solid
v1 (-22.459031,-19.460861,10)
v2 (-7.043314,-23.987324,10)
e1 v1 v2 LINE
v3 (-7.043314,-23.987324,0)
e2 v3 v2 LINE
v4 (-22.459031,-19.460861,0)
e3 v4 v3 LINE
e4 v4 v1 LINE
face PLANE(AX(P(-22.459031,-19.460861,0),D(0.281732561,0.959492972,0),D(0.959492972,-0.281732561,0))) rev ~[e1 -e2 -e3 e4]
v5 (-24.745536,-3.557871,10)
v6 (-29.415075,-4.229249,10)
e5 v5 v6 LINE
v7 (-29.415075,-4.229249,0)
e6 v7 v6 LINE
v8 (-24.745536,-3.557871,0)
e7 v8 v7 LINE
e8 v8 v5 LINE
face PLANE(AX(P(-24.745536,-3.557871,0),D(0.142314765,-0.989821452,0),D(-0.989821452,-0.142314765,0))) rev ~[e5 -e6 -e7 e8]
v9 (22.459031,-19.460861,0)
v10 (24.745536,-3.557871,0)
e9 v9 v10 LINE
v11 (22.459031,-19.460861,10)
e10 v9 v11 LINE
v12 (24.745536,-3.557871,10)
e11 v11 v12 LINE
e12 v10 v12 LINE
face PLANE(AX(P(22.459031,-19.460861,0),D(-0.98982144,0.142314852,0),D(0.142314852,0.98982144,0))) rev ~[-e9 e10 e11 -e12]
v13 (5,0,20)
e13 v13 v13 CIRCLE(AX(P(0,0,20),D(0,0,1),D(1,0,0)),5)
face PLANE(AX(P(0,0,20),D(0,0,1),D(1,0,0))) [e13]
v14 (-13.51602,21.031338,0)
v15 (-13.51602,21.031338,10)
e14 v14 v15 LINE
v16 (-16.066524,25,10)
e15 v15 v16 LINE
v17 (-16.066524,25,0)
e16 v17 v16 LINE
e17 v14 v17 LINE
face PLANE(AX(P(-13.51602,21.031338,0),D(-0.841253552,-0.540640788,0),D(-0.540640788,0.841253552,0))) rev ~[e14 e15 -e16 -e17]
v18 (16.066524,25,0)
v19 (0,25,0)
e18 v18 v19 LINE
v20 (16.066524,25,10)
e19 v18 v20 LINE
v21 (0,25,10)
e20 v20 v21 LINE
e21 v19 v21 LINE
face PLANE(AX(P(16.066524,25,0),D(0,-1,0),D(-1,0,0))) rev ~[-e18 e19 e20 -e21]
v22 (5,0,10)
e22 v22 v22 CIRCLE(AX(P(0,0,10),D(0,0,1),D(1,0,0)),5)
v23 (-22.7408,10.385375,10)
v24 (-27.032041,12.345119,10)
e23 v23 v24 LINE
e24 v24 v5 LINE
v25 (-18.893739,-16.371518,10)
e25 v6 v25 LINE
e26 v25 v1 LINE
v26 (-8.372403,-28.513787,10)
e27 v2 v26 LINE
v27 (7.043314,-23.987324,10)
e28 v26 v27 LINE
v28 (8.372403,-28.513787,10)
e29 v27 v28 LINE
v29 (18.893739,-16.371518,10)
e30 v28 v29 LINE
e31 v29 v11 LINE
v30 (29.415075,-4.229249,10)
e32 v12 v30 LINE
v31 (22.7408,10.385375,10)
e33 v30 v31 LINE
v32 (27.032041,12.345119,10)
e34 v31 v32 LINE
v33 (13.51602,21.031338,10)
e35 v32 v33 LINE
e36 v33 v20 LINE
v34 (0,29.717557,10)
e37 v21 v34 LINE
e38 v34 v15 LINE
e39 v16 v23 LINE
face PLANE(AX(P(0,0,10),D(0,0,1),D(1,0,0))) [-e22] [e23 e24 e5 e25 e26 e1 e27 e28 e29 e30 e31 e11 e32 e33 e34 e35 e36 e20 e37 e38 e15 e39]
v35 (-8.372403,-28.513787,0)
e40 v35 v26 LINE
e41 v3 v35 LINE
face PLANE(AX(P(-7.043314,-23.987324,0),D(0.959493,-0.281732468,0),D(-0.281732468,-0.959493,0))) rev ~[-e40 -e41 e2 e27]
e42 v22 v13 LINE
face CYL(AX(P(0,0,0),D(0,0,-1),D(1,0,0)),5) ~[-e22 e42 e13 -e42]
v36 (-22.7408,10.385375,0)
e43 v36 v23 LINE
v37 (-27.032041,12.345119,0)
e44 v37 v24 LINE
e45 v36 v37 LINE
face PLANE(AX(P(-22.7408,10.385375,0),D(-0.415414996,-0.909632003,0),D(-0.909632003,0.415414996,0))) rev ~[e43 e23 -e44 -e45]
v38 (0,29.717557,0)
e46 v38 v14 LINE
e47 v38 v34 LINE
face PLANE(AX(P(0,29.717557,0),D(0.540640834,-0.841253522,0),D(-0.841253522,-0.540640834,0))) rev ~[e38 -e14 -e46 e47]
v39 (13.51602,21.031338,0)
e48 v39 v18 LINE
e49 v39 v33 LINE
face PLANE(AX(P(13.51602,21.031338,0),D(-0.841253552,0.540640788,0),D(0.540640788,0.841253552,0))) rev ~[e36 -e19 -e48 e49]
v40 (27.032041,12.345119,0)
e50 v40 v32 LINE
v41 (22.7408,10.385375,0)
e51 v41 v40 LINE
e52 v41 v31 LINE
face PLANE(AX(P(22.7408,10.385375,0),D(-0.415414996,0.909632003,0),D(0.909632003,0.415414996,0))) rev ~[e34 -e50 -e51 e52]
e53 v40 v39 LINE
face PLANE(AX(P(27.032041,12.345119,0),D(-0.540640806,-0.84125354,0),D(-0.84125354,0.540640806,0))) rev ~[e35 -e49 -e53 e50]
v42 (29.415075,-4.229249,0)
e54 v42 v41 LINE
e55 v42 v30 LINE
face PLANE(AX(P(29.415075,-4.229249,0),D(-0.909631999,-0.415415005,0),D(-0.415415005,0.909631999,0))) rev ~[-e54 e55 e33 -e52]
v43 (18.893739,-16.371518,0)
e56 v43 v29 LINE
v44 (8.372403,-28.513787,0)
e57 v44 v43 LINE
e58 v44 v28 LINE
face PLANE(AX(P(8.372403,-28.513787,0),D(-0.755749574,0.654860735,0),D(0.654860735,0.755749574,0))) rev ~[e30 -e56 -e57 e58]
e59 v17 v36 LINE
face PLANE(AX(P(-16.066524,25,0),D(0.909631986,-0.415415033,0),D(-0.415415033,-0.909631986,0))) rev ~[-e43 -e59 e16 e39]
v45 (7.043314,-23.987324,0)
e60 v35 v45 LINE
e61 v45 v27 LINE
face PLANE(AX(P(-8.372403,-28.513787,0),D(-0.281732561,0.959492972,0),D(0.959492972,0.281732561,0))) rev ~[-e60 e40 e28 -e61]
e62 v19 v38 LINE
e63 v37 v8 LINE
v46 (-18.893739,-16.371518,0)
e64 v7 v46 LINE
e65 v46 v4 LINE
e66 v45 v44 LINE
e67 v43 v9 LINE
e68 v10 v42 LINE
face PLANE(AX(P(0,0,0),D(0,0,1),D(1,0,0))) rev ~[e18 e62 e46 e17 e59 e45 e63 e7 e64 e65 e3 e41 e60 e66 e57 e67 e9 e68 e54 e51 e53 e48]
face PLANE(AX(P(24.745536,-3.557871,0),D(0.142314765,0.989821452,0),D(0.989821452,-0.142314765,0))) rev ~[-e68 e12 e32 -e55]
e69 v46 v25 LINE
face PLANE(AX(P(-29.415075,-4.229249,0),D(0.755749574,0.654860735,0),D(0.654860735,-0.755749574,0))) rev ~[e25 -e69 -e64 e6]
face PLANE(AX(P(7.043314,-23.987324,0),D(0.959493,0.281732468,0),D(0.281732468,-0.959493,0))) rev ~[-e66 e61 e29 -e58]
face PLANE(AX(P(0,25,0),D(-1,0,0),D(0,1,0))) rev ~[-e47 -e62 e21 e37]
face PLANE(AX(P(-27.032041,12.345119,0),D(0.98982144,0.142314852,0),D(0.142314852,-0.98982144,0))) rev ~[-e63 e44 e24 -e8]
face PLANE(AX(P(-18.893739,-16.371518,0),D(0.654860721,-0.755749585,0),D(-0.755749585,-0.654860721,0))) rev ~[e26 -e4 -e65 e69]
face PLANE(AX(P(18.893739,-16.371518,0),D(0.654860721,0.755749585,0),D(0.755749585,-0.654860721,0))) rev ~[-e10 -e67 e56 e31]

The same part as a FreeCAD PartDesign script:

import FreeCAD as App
import Part
import Sketcher
from FreeCAD import Vector


def add_polygon(sketch, points):
    """Adds a closed chain of lines whose ends are joined by coincident constraints."""
    first, n = sketch.GeometryCount, len(points)
    for a, b in zip(points, points[1:] + points[:1]):
        sketch.addGeometry(Part.LineSegment(App.Vector(*a, 0), App.Vector(*b, 0)), False)
    for i in range(n):
        sketch.addConstraint(Sketcher.Constraint("Coincident", first + i, 2, first + (i + 1) % n, 1))

doc = App.newDocument("Part")
body = doc.addObject("PartDesign::Body", "Body")

sketch1 = body.newObject("Sketcher::SketchObject", "Sketch")
sketch1.AttachmentSupport = (doc.getObject("XY_Plane"), [""])
sketch1.MapMode = "FlatFace"
add_polygon(sketch1, [(22.7408, 10.385375), (27.032041, 12.345119), (13.51602, 21.031338), (16.066524, 25), (0, 25), (0, 29.717557), (-13.51602, 21.031338), (-16.066524, 25), (-22.7408, 10.385375), (-27.032041, 12.345119), (-24.745536, -3.557871), (-29.415075, -4.229249), (-18.893739, -16.371518), (-22.459031, -19.460861), (-7.043314, -23.987324), (-8.372403, -28.513787), (7.043314, -23.987324), (8.372403, -28.513787), (18.893739, -16.371518), (22.459031, -19.460861), (24.745536, -3.557871), (29.415075, -4.229249)])
sketch1.addGeometry(Part.Circle(Vector(0, 0, 0), Vector(0, 0, 1), 5), False)
sketch1.addConstraint(Sketcher.Constraint("Horizontal", 3))
sketch1.addConstraint(Sketcher.Constraint("Vertical", 4))
sketch1.addConstraint(Sketcher.Constraint("Coincident", 22, 3, -1, 1))
sketch1.addConstraint(Sketcher.Constraint("Symmetric", 1, 2, 5, 2, -2))
sketch1.addConstraint(Sketcher.Constraint("Symmetric", 2, 2, 6, 2, -2))
sketch1.addConstraint(Sketcher.Constraint("Symmetric", 0, 2, 8, 2, -2))
sketch1.addConstraint(Sketcher.Constraint("Symmetric", 13, 2, 15, 2, -2))
sketch1.addConstraint(Sketcher.Constraint("Symmetric", 14, 2, 16, 2, -2))
sketch1.addConstraint(Sketcher.Constraint("Symmetric", 11, 2, 17, 2, -2))
sketch1.addConstraint(Sketcher.Constraint("Symmetric", 12, 2, 18, 2, -2))
sketch1.addConstraint(Sketcher.Constraint("Symmetric", 9, 2, 19, 2, -2))
sketch1.addConstraint(Sketcher.Constraint("Symmetric", 10, 2, 20, 2, -2))
sketch1.addConstraint(Sketcher.Constraint("Symmetric", 7, 2, 21, 2, -2))
sketch1.addConstraint(Sketcher.Constraint("PointOnObject", 3, 2, -2))
sketch1.addConstraint(Sketcher.Constraint("Perpendicular", 1, 2))
sketch1.addConstraint(Sketcher.Constraint("Perpendicular", 5, 6))
sketch1.addConstraint(Sketcher.Constraint("Perpendicular", 7, 8))
sketch1.addConstraint(Sketcher.Constraint("Perpendicular", 9, 10))
sketch1.addConstraint(Sketcher.Constraint("Perpendicular", 11, 12))
sketch1.addConstraint(Sketcher.Constraint("Perpendicular", 13, 14))
sketch1.addConstraint(Sketcher.Constraint("Perpendicular", 15, 16))
sketch1.addConstraint(Sketcher.Constraint("Perpendicular", 17, 18))
sketch1.addConstraint(Sketcher.Constraint("Perpendicular", 19, 20))
sketch1.addConstraint(Sketcher.Constraint("Perpendicular", 0, 21))
sketch1.addConstraint(Sketcher.Constraint("Equal", 0, 2))
sketch1.addConstraint(Sketcher.Constraint("Equal", 1, 5))
sketch1.addConstraint(Sketcher.Constraint("Equal", 7, 9))
sketch1.addConstraint(Sketcher.Constraint("Equal", 8, 10))
sketch1.addConstraint(Sketcher.Constraint("Equal", 9, 11))
sketch1.addConstraint(Sketcher.Constraint("Equal", 10, 12))
sketch1.addConstraint(Sketcher.Constraint("Equal", 11, 13))
sketch1.addConstraint(Sketcher.Constraint("Equal", 12, 14))
sketch1.addConstraint(Sketcher.Constraint("Equal", 13, 15))
sketch1.addConstraint(Sketcher.Constraint("Diameter", 22, 10.0))
sketch1.addConstraint(Sketcher.Constraint("DistanceY", -1, 1, 2, 2, 25.0))
sketch1.addConstraint(Sketcher.Constraint("DistanceX", 7, 2, -1, 1, 22.7408))
pad1 = body.newObject("PartDesign::Pad", "Pad")
pad1.Profile = sketch1
pad1.Length = 10

sketch2 = body.newObject("Sketcher::SketchObject", "Sketch001")
sketch2.AttachmentSupport = (doc.getObject("XY_Plane"), [""])
sketch2.MapMode = "FlatFace"
sketch2.addGeometry(Part.Circle(Vector(0, 0, 0), Vector(0, 0, 1), 5), False)
sketch2.addConstraint(Sketcher.Constraint("Coincident", 0, 3, -1, 1))
sketch2.addConstraint(Sketcher.Constraint("Diameter", 0, 10.0))
pad2 = body.newObject("PartDesign::Pad", "Pad001")
pad2.Profile = sketch2
pad2.Length = 20

doc.recompute()
